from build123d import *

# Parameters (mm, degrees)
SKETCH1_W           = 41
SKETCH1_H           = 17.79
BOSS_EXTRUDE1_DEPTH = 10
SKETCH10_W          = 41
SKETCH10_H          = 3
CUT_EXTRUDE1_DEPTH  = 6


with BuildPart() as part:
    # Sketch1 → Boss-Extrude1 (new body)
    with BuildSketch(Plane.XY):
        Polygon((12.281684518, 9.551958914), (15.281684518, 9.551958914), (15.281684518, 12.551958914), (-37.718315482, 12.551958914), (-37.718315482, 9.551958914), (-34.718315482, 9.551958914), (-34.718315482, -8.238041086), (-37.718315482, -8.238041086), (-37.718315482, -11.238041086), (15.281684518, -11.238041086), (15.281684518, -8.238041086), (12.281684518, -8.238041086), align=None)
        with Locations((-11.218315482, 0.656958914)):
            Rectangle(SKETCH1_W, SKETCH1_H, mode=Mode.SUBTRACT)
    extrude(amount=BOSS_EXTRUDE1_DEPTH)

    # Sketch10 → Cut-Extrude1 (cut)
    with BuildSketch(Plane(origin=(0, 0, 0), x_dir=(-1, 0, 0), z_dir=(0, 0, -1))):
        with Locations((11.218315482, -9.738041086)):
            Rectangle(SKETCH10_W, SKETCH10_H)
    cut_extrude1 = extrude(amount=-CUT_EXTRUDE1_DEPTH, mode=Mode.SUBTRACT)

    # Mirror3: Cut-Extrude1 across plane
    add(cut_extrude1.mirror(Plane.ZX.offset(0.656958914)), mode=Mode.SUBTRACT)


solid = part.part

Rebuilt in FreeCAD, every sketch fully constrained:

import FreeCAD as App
import Part
import Sketcher

V = App.Vector


def add_polygon(sketch, points):
    """Adds a closed chain of lines whose ends are joined by coincident constraints."""
    first, n = sketch.GeometryCount, len(points)
    for a, b in zip(points, points[1:] + points[:1]):
        sketch.addGeometry(Part.LineSegment(App.Vector(*a, 0), App.Vector(*b, 0)), False)
    for i in range(n):
        sketch.addConstraint(Sketcher.Constraint("Coincident", first + i, 2, first + (i + 1) % n, 1))

doc = App.newDocument("Part")
body = doc.addObject("PartDesign::Body", "Body")

# Sketch on XY plane
sketch1 = body.newObject("Sketcher::SketchObject", "Sketch")
sketch1.AttachmentSupport = (doc.getObject("XY_Plane"), [""])
sketch1.MapMode = "FlatFace"
add_polygon(sketch1, [(12.3, 9.6), (15.3, 9.6), (15.3, 12.6), (-37.7, 12.6), (-37.7, 9.6), (-34.7, 9.6), (-34.7, -8.2), (-37.7, -8.2), (-37.7, -11.2), (15.3, -11.2), (15.3, -8.2), (12.3, -8.2)])  # lines 0-11
add_polygon(sketch1, [(9.3, -8.2), (-31.7, -8.2), (-31.7, 9.6), (9.3, 9.6)])  # lines 12-15
sketch1.addConstraint([
    Sketcher.Constraint("Horizontal", 0),
    Sketcher.Constraint("Vertical", 1),
    Sketcher.Constraint("Horizontal", 2),
    Sketcher.Constraint("Vertical", 3),
    Sketcher.Constraint("Horizontal", 4),
    Sketcher.Constraint("Vertical", 5),
    Sketcher.Constraint("Horizontal", 6),
    Sketcher.Constraint("Vertical", 7),
    Sketcher.Constraint("Horizontal", 8),
    Sketcher.Constraint("Vertical", 9),
    Sketcher.Constraint("Horizontal", 10),
    Sketcher.Constraint("Vertical", 11),
    Sketcher.Constraint("Horizontal", 12),
    Sketcher.Constraint("Vertical", 13),
    Sketcher.Constraint("Horizontal", 14),
    Sketcher.Constraint("Vertical", 15),
    Sketcher.Constraint("Horizontal", 0, 2, 3, 2),
    Sketcher.Constraint("Horizontal", 6, 2, 9, 2),
    Sketcher.Constraint("Horizontal", 10, 2, 12, 2),
    Sketcher.Constraint("Horizontal", 11, 2, 13, 2),
    Sketcher.Constraint("Vertical", 3, 2, 6, 2),
    Sketcher.Constraint("Vertical", 1, 2, 8, 2),
    Sketcher.Constraint("Equal", 0, 4),
    Sketcher.Constraint("Equal", 10, 1),
    Sketcher.Constraint("Equal", 3, 7),
    Sketcher.Constraint("DistanceX", 0, 1, 0, 2, 3.0),
    Sketcher.Constraint("DistanceX", 2, 2, 2, 1, 53.0),
    Sketcher.Constraint("DistanceX", 12, 2, 12, 1, 41.0),
    Sketcher.Constraint("DistanceX", 5, 2, 12, 2, 3.0),
    Sketcher.Constraint("DistanceY", 5, 2, 5, 1, 17.79),
    Sketcher.Constraint("DistanceY", -1, 1, 0, 2, 9.551959),
    Sketcher.Constraint("DistanceX", -1, 1, 0, 2, 15.281685),
])
pad1 = body.newObject("PartDesign::Pad", "Pad")
pad1.Profile = sketch1
pad1.Length = 10

# Sketch on XY plane
sketch2 = body.newObject("Sketcher::SketchObject", "Sketch001")
sketch2.AttachmentSupport = (doc.getObject("XY_Plane"), [""])
sketch2.MapMode = "FlatFace"
add_polygon(sketch2, [(9.3, -8.2), (9.3, -11.2), (-31.7, -11.2), (-31.7, -8.2)])  # lines 0-3
sketch2.addConstraint([
    Sketcher.Constraint("Vertical", 0),
    Sketcher.Constraint("Horizontal", 1),
    Sketcher.Constraint("Vertical", 2),
    Sketcher.Constraint("Horizontal", 3),
    Sketcher.Constraint("DistanceX", 1, 2, 1, 1, 41.0),
    Sketcher.Constraint("DistanceY", 0, 2, 0, 1, 3.0),
    Sketcher.Constraint("DistanceY", 0, 2, -1, 1, 11.238041),
    Sketcher.Constraint("DistanceX", -1, 1, 0, 2, 9.281685),
])
pocket1 = body.newObject("PartDesign::Pocket", "Pocket")
pocket1.Profile = sketch2
pocket1.Length = 6
pocket1.Reversed = True
doc.recompute()

datumplane = body.newObject("PartDesign::Plane", "DatumPlane")
datumplane.AttachmentSupport = (doc.getObject("XZ_Plane"), [""])
datumplane.MapMode = "FlatFace"
datumplane.AttachmentOffset = App.Placement(V(0, 0, -0.656959), App.Rotation())
mirrored = body.newObject("PartDesign::Mirrored", "Mirrored")
mirrored.Originals = [pocket1]
mirrored.MirrorPlane = (datumplane, [""])
body.Tip = mirrored

doc.recompute()
